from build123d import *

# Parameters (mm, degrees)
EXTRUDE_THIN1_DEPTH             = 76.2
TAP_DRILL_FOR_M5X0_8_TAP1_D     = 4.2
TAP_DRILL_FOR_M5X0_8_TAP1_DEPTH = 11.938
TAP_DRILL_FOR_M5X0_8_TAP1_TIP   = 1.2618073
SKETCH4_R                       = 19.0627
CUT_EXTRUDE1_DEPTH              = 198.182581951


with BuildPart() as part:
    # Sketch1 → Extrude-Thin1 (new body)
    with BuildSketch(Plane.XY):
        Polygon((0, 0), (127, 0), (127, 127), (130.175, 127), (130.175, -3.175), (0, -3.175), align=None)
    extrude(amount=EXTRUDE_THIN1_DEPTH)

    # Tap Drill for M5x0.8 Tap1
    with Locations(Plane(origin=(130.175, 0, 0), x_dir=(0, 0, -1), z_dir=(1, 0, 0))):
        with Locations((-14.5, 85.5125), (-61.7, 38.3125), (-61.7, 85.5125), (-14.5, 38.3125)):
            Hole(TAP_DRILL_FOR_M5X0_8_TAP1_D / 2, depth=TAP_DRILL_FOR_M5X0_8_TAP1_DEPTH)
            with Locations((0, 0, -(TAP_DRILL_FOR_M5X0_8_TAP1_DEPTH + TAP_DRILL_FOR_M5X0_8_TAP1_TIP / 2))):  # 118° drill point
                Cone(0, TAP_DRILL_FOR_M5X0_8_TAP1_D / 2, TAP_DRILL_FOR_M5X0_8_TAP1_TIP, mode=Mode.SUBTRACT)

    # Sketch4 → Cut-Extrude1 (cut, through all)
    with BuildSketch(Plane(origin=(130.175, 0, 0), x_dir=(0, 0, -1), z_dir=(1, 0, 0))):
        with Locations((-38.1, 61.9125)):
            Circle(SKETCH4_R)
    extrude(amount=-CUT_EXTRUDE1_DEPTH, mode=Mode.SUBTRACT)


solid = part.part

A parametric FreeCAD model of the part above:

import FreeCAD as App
import Part
import Sketcher
from FreeCAD import Vector
Q = App.Units.Quantity


def add_polygon(sketch, points):
    """Adds a closed chain of lines whose ends are joined by coincident constraints."""
    first, n = sketch.GeometryCount, len(points)
    for a, b in zip(points, points[1:] + points[:1]):
        sketch.addGeometry(Part.LineSegment(App.Vector(*a, 0), App.Vector(*b, 0)), False)
    for i in range(n):
        sketch.addConstraint(Sketcher.Constraint("Coincident", first + i, 2, first + (i + 1) % n, 1))

doc = App.newDocument("Part")
body = doc.addObject("PartDesign::Body", "Body")

sketch1 = body.newObject("Sketcher::SketchObject", "Sketch")
sketch1.AttachmentSupport = (doc.getObject("XY_Plane"), [""])
sketch1.MapMode = "FlatFace"
add_polygon(sketch1, [(127, 0), (0, 0), (0, -3.2), (130.2, -3.2), (130.2, 127), (127, 127)])
sketch1.addConstraint([
    Sketcher.Constraint("Horizontal", 0),
    Sketcher.Constraint("Vertical", 1),
    Sketcher.Constraint("Horizontal", 2),
    Sketcher.Constraint("Vertical", 3),
    Sketcher.Constraint("Horizontal", 4),
    Sketcher.Constraint("Vertical", 5),
    Sketcher.Constraint("Coincident", 0, 2, -1, 1),
    Sketcher.Constraint("Equal", 4, 1),
    Sketcher.Constraint("Equal", 2, 3),
    Sketcher.Constraint("DistanceX", 0, 2, 0, 1, Q("5 in")),
    Sketcher.Constraint("DistanceX", 2, 1, 2, 2, Q("5.125 in")),
])
pad1 = body.newObject("PartDesign::Pad", "Pad")
pad1.Profile = sketch1
pad1.Length = Q("3 in")

sketch2 = body.newObject("Sketcher::SketchObject", "Sketch001")
sketch2.AttachmentSupport = (doc.getObject("YZ_Plane"), [""])
sketch2.MapMode = "FlatFace"
sketch2.AttachmentOffset = App.Placement(Vector(0, 0, 5.125 * 25.4), App.Rotation())
sketch2.addGeometry([
    Part.Circle(Vector(85.5, 14.5, 0), Vector(0, 0, 1), 2.1),
    Part.Circle(Vector(38.3, 61.7, 0), Vector(0, 0, 1), 2.1),
    Part.Circle(Vector(85.5, 61.7, 0), Vector(0, 0, 1), 2.1),
    Part.Circle(Vector(38.3, 14.5, 0), Vector(0, 0, 1), 2.1),
], False)
sketch2.addConstraint([
    Sketcher.Constraint("Equal", 0, 1),
    Sketcher.Constraint("Equal", 1, 2),
    Sketcher.Constraint("Equal", 2, 3),
    Sketcher.Constraint("Horizontal", 1, 3, 2, 3),
    Sketcher.Constraint("Horizontal", 0, 3, 3, 3),
    Sketcher.Constraint("Vertical", 0, 3, 2, 3),
    Sketcher.Constraint("Vertical", 1, 3, 3, 3),
    Sketcher.Constraint("Diameter", 0, Q("4.2 mm")),
    Sketcher.Constraint("DistanceX", -1, 1, 0, 3, Q("85.5125 mm")),
    Sketcher.Constraint("DistanceY", -1, 1, 0, 3, Q("14.5 mm")),
    Sketcher.Constraint("DistanceX", -1, 1, 1, 3, Q("38.3125 mm")),
    Sketcher.Constraint("DistanceY", -1, 1, 1, 3, Q("61.7 mm")),
])
doc.recompute()
hole = body.newObject("PartDesign::Hole", "Hole")
hole.Profile = sketch2
hole.ThreadType = "None"
hole.Diameter = 4.2
hole.DepthType = "Dimension"
hole.Depth = Q("0.47 in")
hole.DrillPoint = "Angled"
hole.DrillPointAngle = 118

sketch3 = body.newObject("Sketcher::SketchObject", "Sketch002")
sketch3.AttachmentSupport = (doc.getObject("YZ_Plane"), [""])
sketch3.MapMode = "FlatFace"
sketch3.AttachmentOffset = App.Placement(Vector(0, 0, 5.125 * 25.4), App.Rotation())
sketch3.addGeometry(Part.Circle(Vector(62, 38, 0), Vector(0, 0, 1), 19), False)
sketch3.addConstraint([
    Sketcher.Constraint("Diameter", 0, Q("1.501 in")),
    Sketcher.Constraint("DistanceY", -1, 1, 0, 3, Q("1.5 in")),
    Sketcher.Constraint("DistanceX", -1, 1, 0, 3, Q("2.4375 in")),
])
pocket1 = body.newObject("PartDesign::Pocket", "Pocket")
pocket1.Profile = sketch3
pocket1.Type = "ThroughAll"

doc.recompute()
